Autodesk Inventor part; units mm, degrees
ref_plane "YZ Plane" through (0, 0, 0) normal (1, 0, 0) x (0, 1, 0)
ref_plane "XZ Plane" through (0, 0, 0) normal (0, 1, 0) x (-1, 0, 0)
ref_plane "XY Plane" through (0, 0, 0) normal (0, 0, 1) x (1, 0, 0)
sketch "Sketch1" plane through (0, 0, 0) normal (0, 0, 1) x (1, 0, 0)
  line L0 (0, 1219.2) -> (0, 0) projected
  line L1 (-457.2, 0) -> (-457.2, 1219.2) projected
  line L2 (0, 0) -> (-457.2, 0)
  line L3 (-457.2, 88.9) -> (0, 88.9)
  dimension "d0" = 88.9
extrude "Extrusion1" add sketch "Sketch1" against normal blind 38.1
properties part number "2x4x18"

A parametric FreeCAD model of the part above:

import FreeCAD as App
import Part
import Sketcher
Q = App.Units.Quantity


def add_polygon(sketch, points):
    """Adds a closed chain of lines whose ends are joined by coincident constraints."""
    first, n = sketch.GeometryCount, len(points)
    for a, b in zip(points, points[1:] + points[:1]):
        sketch.addGeometry(Part.LineSegment(App.Vector(*a, 0), App.Vector(*b, 0)), False)
    for i in range(n):
        sketch.addConstraint(Sketcher.Constraint("Coincident", first + i, 2, first + (i + 1) % n, 1))

doc = App.newDocument("Part")
params = doc.addObject("Spreadsheet::Sheet", "Params")
for row, (alias, value) in enumerate([
    ("sketch1_height", "3.5 in"),
    ("sketch1_width", "18 in"),
    ("pad1_length", "1.5 in"),
], start=1):
    params.set(f"A{row}", alias)
    params.set(f"B{row}", "=" + value)
    params.setAlias(f"B{row}", alias)

body = doc.addObject("PartDesign::Body", "Body")

sketch1 = body.newObject("Sketcher::SketchObject", "Sketch")
sketch1.AttachmentSupport = (doc.getObject("XY_Plane"), [""])
sketch1.MapMode = "FlatFace"
add_polygon(sketch1, [(0, 0), (0, 88.9), (-457.2, 88.9), (-457.2, 0)])
sketch1.addConstraint(Sketcher.Constraint("Vertical", 0))
sketch1.addConstraint(Sketcher.Constraint("Horizontal", 1))
sketch1.addConstraint(Sketcher.Constraint("Vertical", 2))
sketch1.addConstraint(Sketcher.Constraint("Horizontal", 3))
sketch1.addConstraint(Sketcher.Constraint("Coincident", 3, 2, -1, 1))
sketch1.addConstraint(Sketcher.Constraint("DistanceY", 0, 1, 0, 2, Q("3.5 in")))
sketch1.addConstraint(Sketcher.Constraint("DistanceX", 1, 2, 1, 1, Q("18 in")))
sketch1.setExpression("Constraints[9]", "Params.sketch1_height")
sketch1.setExpression("Constraints[10]", "Params.sketch1_width")
pad1 = body.newObject("PartDesign::Pad", "Pad")
pad1.Profile = sketch1
pad1.setExpression("Length", "Params.pad1_length")
pad1.Reversed = True

doc.recompute()
